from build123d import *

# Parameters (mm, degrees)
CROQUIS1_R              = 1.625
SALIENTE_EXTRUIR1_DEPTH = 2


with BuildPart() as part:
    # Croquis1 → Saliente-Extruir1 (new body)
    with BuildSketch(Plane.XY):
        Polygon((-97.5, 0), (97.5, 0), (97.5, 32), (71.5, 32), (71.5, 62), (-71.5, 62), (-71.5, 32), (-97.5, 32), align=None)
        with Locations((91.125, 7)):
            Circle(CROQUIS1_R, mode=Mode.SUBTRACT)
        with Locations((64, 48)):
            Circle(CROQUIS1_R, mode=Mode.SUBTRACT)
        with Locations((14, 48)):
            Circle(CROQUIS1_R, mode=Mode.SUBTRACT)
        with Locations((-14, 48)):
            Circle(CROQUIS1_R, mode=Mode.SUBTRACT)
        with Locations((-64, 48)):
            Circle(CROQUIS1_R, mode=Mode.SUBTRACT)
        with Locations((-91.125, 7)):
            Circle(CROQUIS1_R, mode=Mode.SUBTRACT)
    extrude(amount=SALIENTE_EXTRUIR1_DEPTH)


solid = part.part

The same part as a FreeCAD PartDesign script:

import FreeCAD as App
import Part
import Sketcher

V = App.Vector
Q = App.Units.Quantity


def add_polygon(sketch, points):
    """Adds a closed chain of lines whose ends are joined by coincident constraints."""
    first, n = sketch.GeometryCount, len(points)
    for a, b in zip(points, points[1:] + points[:1]):
        sketch.addGeometry(Part.LineSegment(App.Vector(*a, 0), App.Vector(*b, 0)), False)
    for i in range(n):
        sketch.addConstraint(Sketcher.Constraint("Coincident", first + i, 2, first + (i + 1) % n, 1))

doc = App.newDocument("Part")
params = doc.addObject("Spreadsheet::Sheet", "Params")
for row, (alias, value) in enumerate([
    ("sketch1_diameter", "3.25 mm"),
    ("sketch1_width", "195 mm"),
    ("sketch1_width2", "26 mm"),
    ("sketch1_height", "32 mm"),
    ("sketch1_height2", "30 mm"),
    ("pad1_length", "2 mm"),
], start=1):
    params.set(f"A{row}", alias)
    params.set(f"B{row}", "=" + value)
    params.setAlias(f"B{row}", alias)

body = doc.addObject("PartDesign::Body", "Body")

sketch1 = body.newObject("Sketcher::SketchObject", "Sketch")
sketch1.AttachmentSupport = (doc.getObject("XY_Plane"), [""])
sketch1.MapMode = "FlatFace"
add_polygon(sketch1, [(-97.5, 0), (97.5, 0), (97.5, 32), (71.5, 32), (71.5, 62), (-71.5, 62), (-71.5, 32), (-97.5, 32)])
sketch1.addGeometry(Part.Circle(V(-91.125, 7, 0), V(0, 0, 1), 1.625), False)
sketch1.addGeometry(Part.Circle(V(91.125, 7, 0), V(0, 0, 1), 1.625), False)
sketch1.addGeometry(Part.Circle(V(-64, 48, 0), V(0, 0, 1), 1.625), False)
sketch1.addGeometry(Part.Circle(V(-14, 48, 0), V(0, 0, 1), 1.625), False)
sketch1.addGeometry(Part.Circle(V(14, 48, 0), V(0, 0, 1), 1.625), False)
sketch1.addGeometry(Part.Circle(V(64, 48, 0), V(0, 0, 1), 1.625), False)
sketch1.addConstraint(Sketcher.Constraint("Horizontal", 0))
sketch1.addConstraint(Sketcher.Constraint("Vertical", 1))
sketch1.addConstraint(Sketcher.Constraint("Horizontal", 2))
sketch1.addConstraint(Sketcher.Constraint("Vertical", 3))
sketch1.addConstraint(Sketcher.Constraint("Horizontal", 4))
sketch1.addConstraint(Sketcher.Constraint("Vertical", 5))
sketch1.addConstraint(Sketcher.Constraint("Horizontal", 6))
sketch1.addConstraint(Sketcher.Constraint("Vertical", 7))
sketch1.addConstraint(Sketcher.Constraint("Equal", 8, 9))
sketch1.addConstraint(Sketcher.Constraint("Equal", 9, 10))
sketch1.addConstraint(Sketcher.Constraint("Equal", 10, 11))
sketch1.addConstraint(Sketcher.Constraint("Equal", 11, 12))
sketch1.addConstraint(Sketcher.Constraint("Equal", 12, 13))
sketch1.addConstraint(Sketcher.Constraint("Symmetric", 0, 2, 7, 2, -1, 1))
sketch1.addConstraint(Sketcher.Constraint("Symmetric", 8, 3, 9, 3, -2))
sketch1.addConstraint(Sketcher.Constraint("Symmetric", 11, 3, 12, 3, -2))
sketch1.addConstraint(Sketcher.Constraint("Symmetric", 10, 3, 13, 3, -2))
sketch1.addConstraint(Sketcher.Constraint("Symmetric", 2, 2, 5, 2, -2))
sketch1.addConstraint(Sketcher.Constraint("Horizontal", 10, 3, 11, 3))
sketch1.addConstraint(Sketcher.Constraint("Diameter", 8, Q("3.25 mm")))
sketch1.addConstraint(Sketcher.Constraint("DistanceX", 0, 1, 0, 2, Q("195 mm")))
sketch1.addConstraint(Sketcher.Constraint("DistanceX", 2, 2, 2, 1, Q("26 mm")))
sketch1.addConstraint(Sketcher.Constraint("DistanceY", 1, 1, 1, 2, Q("32 mm")))
sketch1.addConstraint(Sketcher.Constraint("DistanceY", 3, 1, 3, 2, Q("30 mm")))
sketch1.addConstraint(Sketcher.Constraint("DistanceY", -1, 1, 8, 3, Q("7 mm")))
sketch1.addConstraint(Sketcher.Constraint("DistanceX", 10, 3, -1, 1, Q("64 mm")))
sketch1.addConstraint(Sketcher.Constraint("DistanceY", -1, 1, 10, 3, Q("48 mm")))
sketch1.addConstraint(Sketcher.Constraint("DistanceX", 11, 3, -1, 1, Q("14 mm")))
sketch1.addConstraint(Sketcher.Constraint("DistanceX", 8, 3, 9, 3, Q("182.25 mm")))
sketch1.setExpression("Constraints[27]", "Params.sketch1_diameter")
sketch1.setExpression("Constraints[28]", "Params.sketch1_width")
sketch1.setExpression("Constraints[29]", "Params.sketch1_width2")
sketch1.setExpression("Constraints[30]", "Params.sketch1_height")
sketch1.setExpression("Constraints[31]", "Params.sketch1_height2")
pad1 = body.newObject("PartDesign::Pad", "Pad")
pad1.Profile = sketch1
pad1.setExpression("Length", "Params.pad1_length")

doc.recompute()
